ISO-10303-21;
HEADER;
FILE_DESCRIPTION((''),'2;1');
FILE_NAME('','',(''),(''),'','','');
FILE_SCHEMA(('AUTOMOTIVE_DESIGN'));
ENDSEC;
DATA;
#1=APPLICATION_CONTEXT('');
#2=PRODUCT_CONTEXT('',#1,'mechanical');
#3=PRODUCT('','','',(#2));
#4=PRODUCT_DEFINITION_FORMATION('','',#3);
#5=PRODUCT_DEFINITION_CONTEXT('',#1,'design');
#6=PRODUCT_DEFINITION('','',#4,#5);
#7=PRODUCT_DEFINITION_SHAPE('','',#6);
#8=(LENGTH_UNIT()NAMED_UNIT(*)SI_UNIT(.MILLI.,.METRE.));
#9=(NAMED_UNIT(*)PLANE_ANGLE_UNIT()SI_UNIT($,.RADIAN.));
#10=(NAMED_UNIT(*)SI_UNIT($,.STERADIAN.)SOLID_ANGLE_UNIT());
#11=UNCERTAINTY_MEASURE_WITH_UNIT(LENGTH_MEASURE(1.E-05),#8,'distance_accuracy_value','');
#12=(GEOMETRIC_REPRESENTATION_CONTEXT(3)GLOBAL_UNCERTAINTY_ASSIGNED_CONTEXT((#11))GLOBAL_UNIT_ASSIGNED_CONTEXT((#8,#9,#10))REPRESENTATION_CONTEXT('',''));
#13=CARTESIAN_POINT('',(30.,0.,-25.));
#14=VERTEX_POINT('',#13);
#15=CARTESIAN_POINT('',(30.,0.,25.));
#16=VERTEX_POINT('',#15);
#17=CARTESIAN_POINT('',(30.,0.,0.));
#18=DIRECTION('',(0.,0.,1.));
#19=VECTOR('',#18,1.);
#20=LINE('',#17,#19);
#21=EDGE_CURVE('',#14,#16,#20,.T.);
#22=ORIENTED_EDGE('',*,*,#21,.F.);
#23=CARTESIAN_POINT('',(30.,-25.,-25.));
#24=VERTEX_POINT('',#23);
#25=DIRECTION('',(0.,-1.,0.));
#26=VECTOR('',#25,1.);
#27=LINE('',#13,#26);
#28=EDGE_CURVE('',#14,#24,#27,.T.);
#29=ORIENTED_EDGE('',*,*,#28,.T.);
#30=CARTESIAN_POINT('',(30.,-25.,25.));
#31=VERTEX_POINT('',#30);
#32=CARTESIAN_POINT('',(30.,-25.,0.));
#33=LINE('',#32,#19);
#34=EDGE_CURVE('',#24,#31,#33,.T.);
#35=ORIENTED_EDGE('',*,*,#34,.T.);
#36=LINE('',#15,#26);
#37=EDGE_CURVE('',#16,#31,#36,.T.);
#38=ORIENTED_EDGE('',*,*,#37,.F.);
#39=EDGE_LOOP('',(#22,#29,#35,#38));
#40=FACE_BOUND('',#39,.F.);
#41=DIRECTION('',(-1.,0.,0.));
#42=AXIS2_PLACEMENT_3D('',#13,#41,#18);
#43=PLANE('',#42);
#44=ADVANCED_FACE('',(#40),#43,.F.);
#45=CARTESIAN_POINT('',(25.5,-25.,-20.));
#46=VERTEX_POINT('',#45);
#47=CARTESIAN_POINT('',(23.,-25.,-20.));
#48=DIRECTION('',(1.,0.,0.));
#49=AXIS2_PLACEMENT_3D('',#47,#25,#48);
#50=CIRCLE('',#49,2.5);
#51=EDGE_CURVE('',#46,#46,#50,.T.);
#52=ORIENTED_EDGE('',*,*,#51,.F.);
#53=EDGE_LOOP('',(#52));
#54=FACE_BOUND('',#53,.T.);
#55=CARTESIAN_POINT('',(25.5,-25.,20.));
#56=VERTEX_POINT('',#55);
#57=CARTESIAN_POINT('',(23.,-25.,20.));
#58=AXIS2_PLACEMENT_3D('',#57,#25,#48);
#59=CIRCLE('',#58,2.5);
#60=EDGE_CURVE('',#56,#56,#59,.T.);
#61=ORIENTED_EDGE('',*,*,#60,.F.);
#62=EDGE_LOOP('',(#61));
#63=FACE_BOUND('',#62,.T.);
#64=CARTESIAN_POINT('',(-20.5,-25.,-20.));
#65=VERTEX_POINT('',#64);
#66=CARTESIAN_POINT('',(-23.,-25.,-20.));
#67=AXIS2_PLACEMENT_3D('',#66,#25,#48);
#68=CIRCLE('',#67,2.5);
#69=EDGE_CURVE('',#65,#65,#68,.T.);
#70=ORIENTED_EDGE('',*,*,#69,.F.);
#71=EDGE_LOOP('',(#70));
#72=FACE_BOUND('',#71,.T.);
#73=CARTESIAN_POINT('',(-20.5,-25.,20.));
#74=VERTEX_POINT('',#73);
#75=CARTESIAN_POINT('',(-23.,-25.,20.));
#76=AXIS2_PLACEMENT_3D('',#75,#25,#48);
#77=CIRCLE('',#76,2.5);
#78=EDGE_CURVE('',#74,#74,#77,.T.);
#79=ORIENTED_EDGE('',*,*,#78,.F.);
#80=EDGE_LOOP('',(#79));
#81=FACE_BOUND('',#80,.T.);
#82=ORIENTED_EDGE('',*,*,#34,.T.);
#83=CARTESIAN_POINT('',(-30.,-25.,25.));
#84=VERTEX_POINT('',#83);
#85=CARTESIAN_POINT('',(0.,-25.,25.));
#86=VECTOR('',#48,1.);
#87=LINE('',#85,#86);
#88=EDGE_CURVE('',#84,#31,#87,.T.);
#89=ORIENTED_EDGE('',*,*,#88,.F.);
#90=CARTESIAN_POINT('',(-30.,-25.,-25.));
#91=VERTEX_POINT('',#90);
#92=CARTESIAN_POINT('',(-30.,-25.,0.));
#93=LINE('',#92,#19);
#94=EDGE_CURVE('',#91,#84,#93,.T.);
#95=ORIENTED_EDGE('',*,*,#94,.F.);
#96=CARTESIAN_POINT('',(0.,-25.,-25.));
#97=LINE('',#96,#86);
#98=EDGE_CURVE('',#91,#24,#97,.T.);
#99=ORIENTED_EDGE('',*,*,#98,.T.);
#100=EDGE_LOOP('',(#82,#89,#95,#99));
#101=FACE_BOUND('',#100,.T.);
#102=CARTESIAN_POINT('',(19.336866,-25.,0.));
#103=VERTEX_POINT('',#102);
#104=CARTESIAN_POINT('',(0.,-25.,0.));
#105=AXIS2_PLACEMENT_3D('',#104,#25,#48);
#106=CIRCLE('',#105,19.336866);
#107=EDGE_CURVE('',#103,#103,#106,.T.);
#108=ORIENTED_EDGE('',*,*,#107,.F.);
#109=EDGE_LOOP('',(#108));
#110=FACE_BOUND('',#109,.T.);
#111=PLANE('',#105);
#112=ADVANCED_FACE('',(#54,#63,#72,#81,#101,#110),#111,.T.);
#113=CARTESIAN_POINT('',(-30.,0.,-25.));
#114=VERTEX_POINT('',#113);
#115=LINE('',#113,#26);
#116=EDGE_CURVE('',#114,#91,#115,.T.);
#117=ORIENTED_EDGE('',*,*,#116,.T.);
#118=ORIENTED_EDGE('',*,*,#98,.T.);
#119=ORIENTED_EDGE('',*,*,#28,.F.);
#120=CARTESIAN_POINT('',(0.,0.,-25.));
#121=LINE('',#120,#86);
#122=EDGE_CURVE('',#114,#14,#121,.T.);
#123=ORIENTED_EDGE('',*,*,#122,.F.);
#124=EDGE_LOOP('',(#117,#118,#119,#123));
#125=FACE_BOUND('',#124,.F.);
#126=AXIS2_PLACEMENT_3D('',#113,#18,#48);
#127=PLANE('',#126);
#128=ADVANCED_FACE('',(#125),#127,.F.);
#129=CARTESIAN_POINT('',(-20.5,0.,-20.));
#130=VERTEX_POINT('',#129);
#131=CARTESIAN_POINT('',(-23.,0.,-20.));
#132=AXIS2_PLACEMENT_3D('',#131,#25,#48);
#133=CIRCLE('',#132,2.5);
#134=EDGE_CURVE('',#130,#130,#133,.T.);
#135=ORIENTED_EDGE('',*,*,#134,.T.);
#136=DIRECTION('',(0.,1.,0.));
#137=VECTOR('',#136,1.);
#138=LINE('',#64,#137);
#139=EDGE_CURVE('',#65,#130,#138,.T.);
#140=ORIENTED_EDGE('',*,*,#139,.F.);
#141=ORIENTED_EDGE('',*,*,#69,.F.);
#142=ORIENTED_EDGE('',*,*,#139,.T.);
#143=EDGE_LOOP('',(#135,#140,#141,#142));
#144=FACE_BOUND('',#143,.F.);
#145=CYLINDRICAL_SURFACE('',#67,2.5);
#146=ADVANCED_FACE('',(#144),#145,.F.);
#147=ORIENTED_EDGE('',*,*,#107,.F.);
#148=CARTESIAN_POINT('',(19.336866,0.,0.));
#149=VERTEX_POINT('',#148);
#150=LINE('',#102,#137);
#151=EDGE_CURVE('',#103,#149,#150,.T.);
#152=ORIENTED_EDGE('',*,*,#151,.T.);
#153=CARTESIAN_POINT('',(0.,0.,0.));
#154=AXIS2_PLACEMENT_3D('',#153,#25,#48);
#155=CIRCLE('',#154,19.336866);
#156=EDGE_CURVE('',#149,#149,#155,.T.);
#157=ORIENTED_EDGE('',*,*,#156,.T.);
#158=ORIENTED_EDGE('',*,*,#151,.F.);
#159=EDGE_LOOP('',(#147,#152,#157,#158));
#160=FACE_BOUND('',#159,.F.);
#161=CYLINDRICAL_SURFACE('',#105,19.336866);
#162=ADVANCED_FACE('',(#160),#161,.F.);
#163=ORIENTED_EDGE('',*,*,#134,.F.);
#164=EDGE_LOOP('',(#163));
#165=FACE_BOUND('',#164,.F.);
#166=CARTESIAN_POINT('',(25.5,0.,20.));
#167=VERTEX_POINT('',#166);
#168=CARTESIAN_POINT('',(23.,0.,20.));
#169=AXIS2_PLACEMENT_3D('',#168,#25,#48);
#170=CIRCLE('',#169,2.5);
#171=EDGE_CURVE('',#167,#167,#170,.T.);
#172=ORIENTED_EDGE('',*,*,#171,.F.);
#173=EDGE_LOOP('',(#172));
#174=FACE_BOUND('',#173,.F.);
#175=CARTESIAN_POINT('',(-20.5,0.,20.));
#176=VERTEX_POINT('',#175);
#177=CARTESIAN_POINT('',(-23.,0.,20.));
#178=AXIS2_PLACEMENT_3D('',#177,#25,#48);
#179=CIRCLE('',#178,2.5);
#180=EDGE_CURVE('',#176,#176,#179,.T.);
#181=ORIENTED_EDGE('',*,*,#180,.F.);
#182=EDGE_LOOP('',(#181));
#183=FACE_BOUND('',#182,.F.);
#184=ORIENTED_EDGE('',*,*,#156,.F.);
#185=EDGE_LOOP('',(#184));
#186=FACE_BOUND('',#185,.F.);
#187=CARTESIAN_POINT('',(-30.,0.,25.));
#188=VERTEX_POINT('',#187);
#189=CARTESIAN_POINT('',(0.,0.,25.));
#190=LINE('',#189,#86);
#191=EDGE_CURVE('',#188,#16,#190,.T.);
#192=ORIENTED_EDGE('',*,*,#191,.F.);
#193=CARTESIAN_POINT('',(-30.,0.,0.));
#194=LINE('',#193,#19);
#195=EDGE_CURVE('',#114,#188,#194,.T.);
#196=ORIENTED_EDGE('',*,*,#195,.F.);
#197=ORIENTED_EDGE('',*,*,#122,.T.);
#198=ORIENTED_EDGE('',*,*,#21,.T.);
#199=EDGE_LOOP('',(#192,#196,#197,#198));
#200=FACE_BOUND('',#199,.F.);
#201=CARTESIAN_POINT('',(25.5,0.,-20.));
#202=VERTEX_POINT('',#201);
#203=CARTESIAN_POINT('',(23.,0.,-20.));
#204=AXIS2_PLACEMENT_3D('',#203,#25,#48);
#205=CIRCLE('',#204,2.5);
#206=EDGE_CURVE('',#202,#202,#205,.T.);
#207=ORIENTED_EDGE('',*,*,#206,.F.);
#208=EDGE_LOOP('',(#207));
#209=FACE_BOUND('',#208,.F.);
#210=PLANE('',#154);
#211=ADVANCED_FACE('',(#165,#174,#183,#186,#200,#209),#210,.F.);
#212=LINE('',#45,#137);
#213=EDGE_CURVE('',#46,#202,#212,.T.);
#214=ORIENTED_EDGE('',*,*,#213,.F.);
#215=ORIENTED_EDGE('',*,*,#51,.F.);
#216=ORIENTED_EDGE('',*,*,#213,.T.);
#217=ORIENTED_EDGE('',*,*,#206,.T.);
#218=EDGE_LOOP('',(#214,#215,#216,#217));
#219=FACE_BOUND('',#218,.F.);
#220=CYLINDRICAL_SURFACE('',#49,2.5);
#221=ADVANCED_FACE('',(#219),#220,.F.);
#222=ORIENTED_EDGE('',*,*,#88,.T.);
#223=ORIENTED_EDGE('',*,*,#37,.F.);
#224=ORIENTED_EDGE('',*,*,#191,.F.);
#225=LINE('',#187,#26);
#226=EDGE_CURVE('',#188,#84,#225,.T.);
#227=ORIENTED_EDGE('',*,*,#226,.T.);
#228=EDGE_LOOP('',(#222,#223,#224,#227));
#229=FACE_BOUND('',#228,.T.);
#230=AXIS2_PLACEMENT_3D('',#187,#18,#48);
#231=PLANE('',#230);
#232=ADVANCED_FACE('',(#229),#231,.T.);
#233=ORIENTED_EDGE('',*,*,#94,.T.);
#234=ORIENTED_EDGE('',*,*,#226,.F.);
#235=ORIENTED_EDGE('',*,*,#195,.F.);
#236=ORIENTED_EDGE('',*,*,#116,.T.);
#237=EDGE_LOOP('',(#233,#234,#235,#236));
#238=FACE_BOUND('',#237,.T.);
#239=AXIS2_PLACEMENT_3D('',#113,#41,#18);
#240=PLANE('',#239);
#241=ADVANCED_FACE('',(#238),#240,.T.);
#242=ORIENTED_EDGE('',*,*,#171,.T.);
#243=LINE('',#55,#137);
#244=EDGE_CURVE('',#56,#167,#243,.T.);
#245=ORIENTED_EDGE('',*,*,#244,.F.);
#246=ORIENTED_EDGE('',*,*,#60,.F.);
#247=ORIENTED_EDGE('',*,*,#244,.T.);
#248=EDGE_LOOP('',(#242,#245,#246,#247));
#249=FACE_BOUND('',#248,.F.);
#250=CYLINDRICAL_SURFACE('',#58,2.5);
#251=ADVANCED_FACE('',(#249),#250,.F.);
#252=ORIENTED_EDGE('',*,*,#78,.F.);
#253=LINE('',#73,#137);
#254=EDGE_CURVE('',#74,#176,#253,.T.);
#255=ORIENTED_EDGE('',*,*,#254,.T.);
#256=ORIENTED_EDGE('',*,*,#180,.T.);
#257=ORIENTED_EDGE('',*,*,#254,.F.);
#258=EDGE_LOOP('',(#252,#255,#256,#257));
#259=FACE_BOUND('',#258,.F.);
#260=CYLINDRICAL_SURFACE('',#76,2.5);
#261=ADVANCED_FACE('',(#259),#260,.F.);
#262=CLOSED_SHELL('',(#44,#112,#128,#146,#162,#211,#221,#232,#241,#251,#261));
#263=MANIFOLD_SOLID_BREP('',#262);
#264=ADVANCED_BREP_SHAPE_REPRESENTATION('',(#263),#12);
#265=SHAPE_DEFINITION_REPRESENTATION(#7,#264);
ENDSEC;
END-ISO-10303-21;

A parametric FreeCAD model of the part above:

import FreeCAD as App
import Part
import Sketcher

V = App.Vector
Q = App.Units.Quantity


def add_polygon(sketch, points):
    """Adds a closed chain of lines whose ends are joined by coincident constraints."""
    first, n = sketch.GeometryCount, len(points)
    for a, b in zip(points, points[1:] + points[:1]):
        sketch.addGeometry(Part.LineSegment(App.Vector(*a, 0), App.Vector(*b, 0)), False)
    for i in range(n):
        sketch.addConstraint(Sketcher.Constraint("Coincident", first + i, 2, first + (i + 1) % n, 1))

doc = App.newDocument("Part")
body = doc.addObject("PartDesign::Body", "Body")

# Sketch on XZ plane
sketch1 = body.newObject("Sketcher::SketchObject", "Sketch")
sketch1.AttachmentSupport = (doc.getObject("XZ_Plane"), [""])
sketch1.MapMode = "FlatFace"
add_polygon(sketch1, [(-30, 25), (-30, -25), (30, -25), (30, 25)])  # lines 0-3
sketch1.addConstraint([
    Sketcher.Constraint("Vertical", 0),
    Sketcher.Constraint("Horizontal", 1),
    Sketcher.Constraint("Vertical", 2),
    Sketcher.Constraint("Horizontal", 3),
    Sketcher.Constraint("Symmetric", 0, 2, 2, 2, -1, 1),
    Sketcher.Constraint("DistanceX", 1, 1, 1, 2, Q("60 mm")),
    Sketcher.Constraint("DistanceY", 0, 2, 0, 1, Q("50 mm")),
])
pad1 = body.newObject("PartDesign::Pad", "Pad")
pad1.Profile = sketch1
pad1.Length = 25

# Sketch on XZ plane
sketch2 = body.newObject("Sketcher::SketchObject", "Sketch001")
sketch2.AttachmentSupport = (doc.getObject("XZ_Plane"), [""])
sketch2.MapMode = "FlatFace"
sketch2.AttachmentOffset = App.Placement(V(0, 0, 25), App.Rotation())
sketch2.addGeometry([
    Part.Circle(V(-23, 20, 0), V(0, 0, 1), 2.5),  # 0
    Part.Circle(V(23, 20, 0), V(0, 0, 1), 2.5),  # 1
    Part.Circle(V(-23, -20, 0), V(0, 0, 1), 2.5),  # 2
    Part.Circle(V(23, -20, 0), V(0, 0, 1), 2.5),  # 3
    Part.Circle(V(0, 0, 0), V(0, 0, 1), 19.3),  # 4
], False)
sketch2.addConstraint([
    Sketcher.Constraint("Coincident", 4, 3, -1, 1),
    Sketcher.Constraint("Equal", 0, 1),
    Sketcher.Constraint("Equal", 1, 2),
    Sketcher.Constraint("Equal", 2, 3),
    Sketcher.Constraint("Symmetric", 1, 3, 2, 3, -1, 1),
    Sketcher.Constraint("Symmetric", 0, 3, 3, 3, -1, 1),
    Sketcher.Constraint("Symmetric", 0, 3, 1, 3, -2),
    Sketcher.Constraint("Diameter", 0, Q("5 mm")),
    Sketcher.Constraint("DistanceX", 0, 3, -1, 1, Q("23 mm")),
    Sketcher.Constraint("DistanceY", -1, 1, 0, 3, Q("20 mm")),
    Sketcher.Constraint("Diameter", 4, Q("38.673732 mm")),
])
pocket1 = body.newObject("PartDesign::Pocket", "Pocket")
pocket1.Profile = sketch2
pocket1.Type = "ThroughAll"

doc.recompute()
